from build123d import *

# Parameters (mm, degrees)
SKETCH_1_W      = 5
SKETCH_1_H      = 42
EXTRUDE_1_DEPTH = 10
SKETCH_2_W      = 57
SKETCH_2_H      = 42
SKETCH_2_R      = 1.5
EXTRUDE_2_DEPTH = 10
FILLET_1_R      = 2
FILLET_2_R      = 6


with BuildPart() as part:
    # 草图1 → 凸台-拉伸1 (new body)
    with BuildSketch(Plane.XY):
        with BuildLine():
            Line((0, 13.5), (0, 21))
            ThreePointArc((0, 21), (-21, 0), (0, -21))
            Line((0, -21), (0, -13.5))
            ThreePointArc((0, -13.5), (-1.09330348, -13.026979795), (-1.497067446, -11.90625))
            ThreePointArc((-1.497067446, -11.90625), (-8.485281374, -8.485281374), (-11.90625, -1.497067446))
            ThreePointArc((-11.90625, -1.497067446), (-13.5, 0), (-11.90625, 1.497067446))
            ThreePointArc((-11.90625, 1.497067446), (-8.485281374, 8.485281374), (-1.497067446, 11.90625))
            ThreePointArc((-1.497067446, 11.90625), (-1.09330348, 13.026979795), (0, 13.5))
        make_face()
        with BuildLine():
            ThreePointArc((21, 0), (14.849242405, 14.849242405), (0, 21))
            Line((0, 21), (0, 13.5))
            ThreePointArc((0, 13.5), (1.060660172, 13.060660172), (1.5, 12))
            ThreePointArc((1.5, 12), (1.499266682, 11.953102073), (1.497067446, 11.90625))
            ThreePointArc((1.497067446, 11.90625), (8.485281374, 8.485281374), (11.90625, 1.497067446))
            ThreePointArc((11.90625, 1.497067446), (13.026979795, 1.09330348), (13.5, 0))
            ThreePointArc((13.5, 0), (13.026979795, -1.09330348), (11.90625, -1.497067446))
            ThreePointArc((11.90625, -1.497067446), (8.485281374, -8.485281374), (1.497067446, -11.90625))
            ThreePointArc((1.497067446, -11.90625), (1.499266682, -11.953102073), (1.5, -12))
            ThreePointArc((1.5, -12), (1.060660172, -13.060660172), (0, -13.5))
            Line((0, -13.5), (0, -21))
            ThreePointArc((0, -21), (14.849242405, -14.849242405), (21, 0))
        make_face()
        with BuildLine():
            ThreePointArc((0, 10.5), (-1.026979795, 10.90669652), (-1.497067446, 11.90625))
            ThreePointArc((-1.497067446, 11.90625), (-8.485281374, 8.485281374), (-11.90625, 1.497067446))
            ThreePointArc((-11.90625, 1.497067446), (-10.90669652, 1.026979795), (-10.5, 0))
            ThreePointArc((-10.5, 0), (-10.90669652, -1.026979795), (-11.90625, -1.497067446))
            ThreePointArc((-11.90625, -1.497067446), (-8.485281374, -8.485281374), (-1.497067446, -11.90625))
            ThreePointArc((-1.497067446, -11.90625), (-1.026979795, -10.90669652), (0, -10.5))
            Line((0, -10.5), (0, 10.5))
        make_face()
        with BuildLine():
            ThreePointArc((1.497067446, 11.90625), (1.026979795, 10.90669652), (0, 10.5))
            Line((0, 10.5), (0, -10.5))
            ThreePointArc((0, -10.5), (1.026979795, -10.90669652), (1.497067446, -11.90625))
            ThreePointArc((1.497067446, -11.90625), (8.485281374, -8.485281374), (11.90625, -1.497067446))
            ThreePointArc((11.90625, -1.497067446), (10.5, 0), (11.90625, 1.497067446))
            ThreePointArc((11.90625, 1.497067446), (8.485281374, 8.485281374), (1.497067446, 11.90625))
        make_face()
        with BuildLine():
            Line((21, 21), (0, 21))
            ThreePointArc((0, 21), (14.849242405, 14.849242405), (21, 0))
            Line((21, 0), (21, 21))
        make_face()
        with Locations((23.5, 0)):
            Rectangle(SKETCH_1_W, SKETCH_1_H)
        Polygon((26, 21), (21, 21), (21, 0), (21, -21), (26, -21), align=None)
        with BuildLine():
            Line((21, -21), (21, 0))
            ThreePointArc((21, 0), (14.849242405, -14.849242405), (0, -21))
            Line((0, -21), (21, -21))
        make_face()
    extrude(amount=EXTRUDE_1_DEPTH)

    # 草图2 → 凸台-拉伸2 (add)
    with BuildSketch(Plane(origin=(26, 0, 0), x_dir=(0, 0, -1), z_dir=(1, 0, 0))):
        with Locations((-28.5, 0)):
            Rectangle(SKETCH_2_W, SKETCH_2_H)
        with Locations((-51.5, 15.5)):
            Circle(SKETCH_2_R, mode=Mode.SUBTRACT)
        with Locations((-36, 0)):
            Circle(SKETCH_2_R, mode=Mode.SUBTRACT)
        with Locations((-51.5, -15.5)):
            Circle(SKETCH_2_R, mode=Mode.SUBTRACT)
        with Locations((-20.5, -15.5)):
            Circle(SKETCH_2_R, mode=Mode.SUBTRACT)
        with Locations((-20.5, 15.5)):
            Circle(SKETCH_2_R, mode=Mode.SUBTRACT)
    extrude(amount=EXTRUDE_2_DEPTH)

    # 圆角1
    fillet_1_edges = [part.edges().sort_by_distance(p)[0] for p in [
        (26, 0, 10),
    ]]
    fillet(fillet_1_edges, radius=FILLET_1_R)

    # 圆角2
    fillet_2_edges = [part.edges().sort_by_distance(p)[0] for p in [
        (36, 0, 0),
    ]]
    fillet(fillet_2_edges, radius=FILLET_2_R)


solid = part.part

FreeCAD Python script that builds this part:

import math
import FreeCAD as App
import Part
import Sketcher
Q = App.Units.Quantity


def edges_at(feature, points):
    """Names of the edges that pass closest to the given points."""
    edges = feature.Shape.Edges
    near = lambda p: min(range(len(edges)), key=lambda i: edges[i].distToShape(Part.Vertex(*p))[0])
    return sorted({f"Edge{near(p) + 1}" for p in points})


def add_polygon(sketch, points):
    """Adds a closed chain of lines whose ends are joined by coincident constraints."""
    first, n = sketch.GeometryCount, len(points)
    for a, b in zip(points, points[1:] + points[:1]):
        sketch.addGeometry(Part.LineSegment(App.Vector(*a, 0), App.Vector(*b, 0)), False)
    for i in range(n):
        sketch.addConstraint(Sketcher.Constraint("Coincident", first + i, 2, first + (i + 1) % n, 1))

doc = App.newDocument("Part")
body = doc.addObject("PartDesign::Body", "Body")

# Sketch on XY plane
sketch1 = body.newObject("Sketcher::SketchObject", "Sketch")
sketch1.AttachmentSupport = (doc.getObject("XY_Plane"), [""])
sketch1.MapMode = "FlatFace"
sketch1.addGeometry([
    Part.ArcOfCircle(Part.Circle(App.Vector(0, 0, 0), App.Vector(0, 0, 1), 21), math.radians(90), math.radians(270)),  # 0
    Part.LineSegment(App.Vector(0, -21, 0), App.Vector(26, -21, 0)),  # 1
    Part.LineSegment(App.Vector(26, -21, 0), App.Vector(26, 21, 0)),  # 2
    Part.LineSegment(App.Vector(26, 21, 0), App.Vector(0, 21, 0)),  # 3
    Part.ArcOfCircle(Part.Circle(App.Vector(0, -12, 0), App.Vector(0, 0, 1), 1.5), math.radians(176), math.radians(270)),  # 4
    Part.ArcOfCircle(Part.Circle(App.Vector(0, -12, 0), App.Vector(0, 0, 1), 1.5), math.radians(90), math.radians(176)),  # 5
    Part.ArcOfCircle(Part.Circle(App.Vector(0, -12, 0), App.Vector(0, 0, 1), 1.5), math.radians(4), math.radians(90)),  # 6
    Part.ArcOfCircle(Part.Circle(App.Vector(0, -12, 0), App.Vector(0, 0, 1), 1.5), math.radians(0), math.radians(3.58)),  # 7
    Part.ArcOfCircle(Part.Circle(App.Vector(0, -12, 0), App.Vector(0, 0, 1), 1.5), math.radians(-90), math.radians(0)),  # 8
    Part.ArcOfCircle(Part.Circle(App.Vector(-12, 0, 0), App.Vector(0, 0, 1), 1.5), math.radians(86), math.radians(274)),  # 9
    Part.ArcOfCircle(Part.Circle(App.Vector(-12, 0, 0), App.Vector(0, 0, 1), 1.5), math.radians(0), math.radians(86)),  # 10
    Part.ArcOfCircle(Part.Circle(App.Vector(-12, 0, 0), App.Vector(0, 0, 1), 1.5), math.radians(-86), math.radians(0)),  # 11
    Part.ArcOfCircle(Part.Circle(App.Vector(0, 12, 0), App.Vector(0, 0, 1), 1.5), math.radians(-176), math.radians(-90)),  # 12
    Part.ArcOfCircle(Part.Circle(App.Vector(0, 12, 0), App.Vector(0, 0, 1), 1.5), math.radians(90), math.radians(184)),  # 13
    Part.ArcOfCircle(Part.Circle(App.Vector(0, 12, 0), App.Vector(0, 0, 1), 1.5), math.radians(0), math.radians(90)),  # 14
    Part.ArcOfCircle(Part.Circle(App.Vector(0, 12, 0), App.Vector(0, 0, 1), 1.5), math.radians(-3.58), math.radians(0)),  # 15
    Part.ArcOfCircle(Part.Circle(App.Vector(0, 12, 0), App.Vector(0, 0, 1), 1.5), math.radians(-90), math.radians(-4)),  # 16
    Part.ArcOfCircle(Part.Circle(App.Vector(12, 0, 0), App.Vector(0, 0, 1), 1.5), math.radians(0), math.radians(94)),  # 17
    Part.ArcOfCircle(Part.Circle(App.Vector(12, 0, 0), App.Vector(0, 0, 1), 1.5), math.radians(-94), math.radians(0)),  # 18
    Part.ArcOfCircle(Part.Circle(App.Vector(12, 0, 0), App.Vector(0, 0, 1), 1.5), math.radians(94), math.radians(266)),  # 19
], False)
sketch1.addConstraint([
    Sketcher.Constraint("Tangent", 0, 2, 1, 1),
    Sketcher.Constraint("Coincident", 1, 2, 2, 1),
    Sketcher.Constraint("Coincident", 2, 2, 3, 1),
    Sketcher.Constraint("Tangent", 3, 2, 0, 1),
    Sketcher.Constraint("Tangent", 4, 1, 5, 2),
    Sketcher.Constraint("Tangent", 5, 1, 6, 2),
    Sketcher.Constraint("Tangent", 6, 1, 7, 2),
    Sketcher.Constraint("Tangent", 7, 1, 8, 2),
    Sketcher.Constraint("Tangent", 8, 1, 4, 2),
    Sketcher.Constraint("Tangent", 9, 1, 10, 2),
    Sketcher.Constraint("Tangent", 10, 1, 11, 2),
    Sketcher.Constraint("Tangent", 11, 1, 9, 2),
    Sketcher.Constraint("Tangent", 12, 1, 13, 2),
    Sketcher.Constraint("Tangent", 13, 1, 14, 2),
    Sketcher.Constraint("Tangent", 14, 1, 15, 2),
    Sketcher.Constraint("Tangent", 15, 1, 16, 2),
    Sketcher.Constraint("Tangent", 16, 1, 12, 2),
    Sketcher.Constraint("Tangent", 17, 1, 18, 2),
    Sketcher.Constraint("Tangent", 18, 1, 19, 2),
    Sketcher.Constraint("Tangent", 19, 1, 17, 2),
    Sketcher.Constraint("Horizontal", 1),
    Sketcher.Constraint("Vertical", 2),
    Sketcher.Constraint("Horizontal", 3),
    Sketcher.Constraint("Coincident", 0, 3, -1, 1),
    Sketcher.Constraint("Coincident", 6, 3, 4, 3),
    Sketcher.Constraint("Coincident", 14, 3, 12, 3),
    Sketcher.Constraint("Equal", 8, 9),
    Sketcher.Constraint("Equal", 11, 12),
    Sketcher.Constraint("Equal", 16, 17),
    Sketcher.Constraint("Symmetric", 4, 3, 12, 3, -1, 1),
    Sketcher.Constraint("Symmetric", 9, 3, 17, 3, -1, 1),
    Sketcher.Constraint("Symmetric", 4, 1, 6, 1, -2),
    Sketcher.Constraint("Symmetric", 11, 1, 18, 1, -2),
    Sketcher.Constraint("PointOnObject", 5, 1, -2),
    Sketcher.Constraint("PointOnObject", 8, 1, -2),
    Sketcher.Constraint("PointOnObject", 10, 1, -1),
    Sketcher.Constraint("PointOnObject", 13, 1, -2),
    Sketcher.Constraint("PointOnObject", 16, 1, -2),
    Sketcher.Constraint("PointOnObject", 17, 1, -1),
    Sketcher.Constraint("Horizontal", 8, 3, 7, 1),
    Sketcher.Constraint("Horizontal", 16, 3, 14, 1),
    Sketcher.Constraint("Horizontal", 12, 1, 15, 1),
    Sketcher.Constraint("Horizontal", 9, 1, 19, 1),
    Sketcher.Constraint("Vertical", 9, 1, 11, 1),
    Sketcher.Constraint("Vertical", 4, 1, 12, 1),
    Sketcher.Constraint("Radius", 0, Q("21 mm")),
    Sketcher.Constraint("Radius", 4, Q("1.5 mm")),
    Sketcher.Constraint("DistanceX", 1, 1, 1, 2, Q("26 mm")),
    Sketcher.Constraint("DistanceY", 4, 3, -1, 1, Q("12 mm")),
    Sketcher.Constraint("DistanceX", 9, 3, -1, 1, Q("12 mm")),
    Sketcher.Constraint("DistanceY", 4, 1, -1, 1, Q("11.90625 mm")),
    Sketcher.Constraint("DistanceX", 9, 1, -1, 1, Q("11.90625 mm")),
])
pad1 = body.newObject("PartDesign::Pad", "Pad")
pad1.Profile = sketch1
pad1.Length = 10

# Sketch on YZ plane
sketch2 = body.newObject("Sketcher::SketchObject", "Sketch001")
sketch2.AttachmentSupport = (doc.getObject("YZ_Plane"), [""])
sketch2.MapMode = "FlatFace"
sketch2.AttachmentOffset = App.Placement(App.Vector(0, 0, 26), App.Rotation())
add_polygon(sketch2, [(21, 57), (-21, 57), (-21, 0), (21, 0)])  # lines 0-3
sketch2.addGeometry(Part.Circle(App.Vector(-15.5, 51.5, 0), App.Vector(0, 0, 1), 1.5), False)  # 4
sketch2.addGeometry(Part.Circle(App.Vector(-15.5, 20.5, 0), App.Vector(0, 0, 1), 1.5), False)  # 5
sketch2.addGeometry(Part.Circle(App.Vector(15.5, 51.5, 0), App.Vector(0, 0, 1), 1.5), False)  # 6
sketch2.addGeometry(Part.Circle(App.Vector(0, 36, 0), App.Vector(0, 0, 1), 1.5), False)  # 7
sketch2.addGeometry(Part.Circle(App.Vector(15.5, 20.5, 0), App.Vector(0, 0, 1), 1.5), False)  # 8
sketch2.addConstraint([
    Sketcher.Constraint("Horizontal", 0),
    Sketcher.Constraint("Vertical", 1),
    Sketcher.Constraint("Horizontal", 2),
    Sketcher.Constraint("Vertical", 3),
    Sketcher.Constraint("Equal", 4, 5),
    Sketcher.Constraint("Equal", 5, 6),
    Sketcher.Constraint("Equal", 6, 7),
    Sketcher.Constraint("Equal", 7, 8),
    Sketcher.Constraint("Symmetric", 1, 2, 2, 2, -1, 1),
    Sketcher.Constraint("Symmetric", 4, 3, 6, 3, -2),
    Sketcher.Constraint("Symmetric", 5, 3, 8, 3, -2),
    Sketcher.Constraint("PointOnObject", 7, 3, -2),
    Sketcher.Constraint("Vertical", 4, 3, 5, 3),
    Sketcher.Constraint("Diameter", 4, Q("3 mm")),
    Sketcher.Constraint("DistanceX", 0, 2, 0, 1, Q("42 mm")),
    Sketcher.Constraint("DistanceY", 1, 2, 1, 1, Q("57 mm")),
    Sketcher.Constraint("DistanceY", -1, 1, 7, 3, Q("36 mm")),
    Sketcher.Constraint("DistanceY", 5, 3, 4, 3, Q("31 mm")),
    Sketcher.Constraint("DistanceX", 4, 3, 6, 3, Q("31 mm")),
    Sketcher.Constraint("DistanceY", -1, 1, 4, 3, Q("51.5 mm")),
])
pad2 = body.newObject("PartDesign::Pad", "Pad001")
pad2.Profile = sketch2
pad2.Length = 10
doc.recompute()

fillet = body.newObject("PartDesign::Fillet", "Fillet")
fillet.Base = (pad2, edges_at(pad2, [(26, 0, 10)]))
fillet.Radius = 2
doc.recompute()

fillet2 = body.newObject("PartDesign::Fillet", "Fillet001")
fillet2.Base = (fillet, edges_at(fillet, [(36, 0, 0)]))
fillet2.Radius = 6

doc.recompute()
